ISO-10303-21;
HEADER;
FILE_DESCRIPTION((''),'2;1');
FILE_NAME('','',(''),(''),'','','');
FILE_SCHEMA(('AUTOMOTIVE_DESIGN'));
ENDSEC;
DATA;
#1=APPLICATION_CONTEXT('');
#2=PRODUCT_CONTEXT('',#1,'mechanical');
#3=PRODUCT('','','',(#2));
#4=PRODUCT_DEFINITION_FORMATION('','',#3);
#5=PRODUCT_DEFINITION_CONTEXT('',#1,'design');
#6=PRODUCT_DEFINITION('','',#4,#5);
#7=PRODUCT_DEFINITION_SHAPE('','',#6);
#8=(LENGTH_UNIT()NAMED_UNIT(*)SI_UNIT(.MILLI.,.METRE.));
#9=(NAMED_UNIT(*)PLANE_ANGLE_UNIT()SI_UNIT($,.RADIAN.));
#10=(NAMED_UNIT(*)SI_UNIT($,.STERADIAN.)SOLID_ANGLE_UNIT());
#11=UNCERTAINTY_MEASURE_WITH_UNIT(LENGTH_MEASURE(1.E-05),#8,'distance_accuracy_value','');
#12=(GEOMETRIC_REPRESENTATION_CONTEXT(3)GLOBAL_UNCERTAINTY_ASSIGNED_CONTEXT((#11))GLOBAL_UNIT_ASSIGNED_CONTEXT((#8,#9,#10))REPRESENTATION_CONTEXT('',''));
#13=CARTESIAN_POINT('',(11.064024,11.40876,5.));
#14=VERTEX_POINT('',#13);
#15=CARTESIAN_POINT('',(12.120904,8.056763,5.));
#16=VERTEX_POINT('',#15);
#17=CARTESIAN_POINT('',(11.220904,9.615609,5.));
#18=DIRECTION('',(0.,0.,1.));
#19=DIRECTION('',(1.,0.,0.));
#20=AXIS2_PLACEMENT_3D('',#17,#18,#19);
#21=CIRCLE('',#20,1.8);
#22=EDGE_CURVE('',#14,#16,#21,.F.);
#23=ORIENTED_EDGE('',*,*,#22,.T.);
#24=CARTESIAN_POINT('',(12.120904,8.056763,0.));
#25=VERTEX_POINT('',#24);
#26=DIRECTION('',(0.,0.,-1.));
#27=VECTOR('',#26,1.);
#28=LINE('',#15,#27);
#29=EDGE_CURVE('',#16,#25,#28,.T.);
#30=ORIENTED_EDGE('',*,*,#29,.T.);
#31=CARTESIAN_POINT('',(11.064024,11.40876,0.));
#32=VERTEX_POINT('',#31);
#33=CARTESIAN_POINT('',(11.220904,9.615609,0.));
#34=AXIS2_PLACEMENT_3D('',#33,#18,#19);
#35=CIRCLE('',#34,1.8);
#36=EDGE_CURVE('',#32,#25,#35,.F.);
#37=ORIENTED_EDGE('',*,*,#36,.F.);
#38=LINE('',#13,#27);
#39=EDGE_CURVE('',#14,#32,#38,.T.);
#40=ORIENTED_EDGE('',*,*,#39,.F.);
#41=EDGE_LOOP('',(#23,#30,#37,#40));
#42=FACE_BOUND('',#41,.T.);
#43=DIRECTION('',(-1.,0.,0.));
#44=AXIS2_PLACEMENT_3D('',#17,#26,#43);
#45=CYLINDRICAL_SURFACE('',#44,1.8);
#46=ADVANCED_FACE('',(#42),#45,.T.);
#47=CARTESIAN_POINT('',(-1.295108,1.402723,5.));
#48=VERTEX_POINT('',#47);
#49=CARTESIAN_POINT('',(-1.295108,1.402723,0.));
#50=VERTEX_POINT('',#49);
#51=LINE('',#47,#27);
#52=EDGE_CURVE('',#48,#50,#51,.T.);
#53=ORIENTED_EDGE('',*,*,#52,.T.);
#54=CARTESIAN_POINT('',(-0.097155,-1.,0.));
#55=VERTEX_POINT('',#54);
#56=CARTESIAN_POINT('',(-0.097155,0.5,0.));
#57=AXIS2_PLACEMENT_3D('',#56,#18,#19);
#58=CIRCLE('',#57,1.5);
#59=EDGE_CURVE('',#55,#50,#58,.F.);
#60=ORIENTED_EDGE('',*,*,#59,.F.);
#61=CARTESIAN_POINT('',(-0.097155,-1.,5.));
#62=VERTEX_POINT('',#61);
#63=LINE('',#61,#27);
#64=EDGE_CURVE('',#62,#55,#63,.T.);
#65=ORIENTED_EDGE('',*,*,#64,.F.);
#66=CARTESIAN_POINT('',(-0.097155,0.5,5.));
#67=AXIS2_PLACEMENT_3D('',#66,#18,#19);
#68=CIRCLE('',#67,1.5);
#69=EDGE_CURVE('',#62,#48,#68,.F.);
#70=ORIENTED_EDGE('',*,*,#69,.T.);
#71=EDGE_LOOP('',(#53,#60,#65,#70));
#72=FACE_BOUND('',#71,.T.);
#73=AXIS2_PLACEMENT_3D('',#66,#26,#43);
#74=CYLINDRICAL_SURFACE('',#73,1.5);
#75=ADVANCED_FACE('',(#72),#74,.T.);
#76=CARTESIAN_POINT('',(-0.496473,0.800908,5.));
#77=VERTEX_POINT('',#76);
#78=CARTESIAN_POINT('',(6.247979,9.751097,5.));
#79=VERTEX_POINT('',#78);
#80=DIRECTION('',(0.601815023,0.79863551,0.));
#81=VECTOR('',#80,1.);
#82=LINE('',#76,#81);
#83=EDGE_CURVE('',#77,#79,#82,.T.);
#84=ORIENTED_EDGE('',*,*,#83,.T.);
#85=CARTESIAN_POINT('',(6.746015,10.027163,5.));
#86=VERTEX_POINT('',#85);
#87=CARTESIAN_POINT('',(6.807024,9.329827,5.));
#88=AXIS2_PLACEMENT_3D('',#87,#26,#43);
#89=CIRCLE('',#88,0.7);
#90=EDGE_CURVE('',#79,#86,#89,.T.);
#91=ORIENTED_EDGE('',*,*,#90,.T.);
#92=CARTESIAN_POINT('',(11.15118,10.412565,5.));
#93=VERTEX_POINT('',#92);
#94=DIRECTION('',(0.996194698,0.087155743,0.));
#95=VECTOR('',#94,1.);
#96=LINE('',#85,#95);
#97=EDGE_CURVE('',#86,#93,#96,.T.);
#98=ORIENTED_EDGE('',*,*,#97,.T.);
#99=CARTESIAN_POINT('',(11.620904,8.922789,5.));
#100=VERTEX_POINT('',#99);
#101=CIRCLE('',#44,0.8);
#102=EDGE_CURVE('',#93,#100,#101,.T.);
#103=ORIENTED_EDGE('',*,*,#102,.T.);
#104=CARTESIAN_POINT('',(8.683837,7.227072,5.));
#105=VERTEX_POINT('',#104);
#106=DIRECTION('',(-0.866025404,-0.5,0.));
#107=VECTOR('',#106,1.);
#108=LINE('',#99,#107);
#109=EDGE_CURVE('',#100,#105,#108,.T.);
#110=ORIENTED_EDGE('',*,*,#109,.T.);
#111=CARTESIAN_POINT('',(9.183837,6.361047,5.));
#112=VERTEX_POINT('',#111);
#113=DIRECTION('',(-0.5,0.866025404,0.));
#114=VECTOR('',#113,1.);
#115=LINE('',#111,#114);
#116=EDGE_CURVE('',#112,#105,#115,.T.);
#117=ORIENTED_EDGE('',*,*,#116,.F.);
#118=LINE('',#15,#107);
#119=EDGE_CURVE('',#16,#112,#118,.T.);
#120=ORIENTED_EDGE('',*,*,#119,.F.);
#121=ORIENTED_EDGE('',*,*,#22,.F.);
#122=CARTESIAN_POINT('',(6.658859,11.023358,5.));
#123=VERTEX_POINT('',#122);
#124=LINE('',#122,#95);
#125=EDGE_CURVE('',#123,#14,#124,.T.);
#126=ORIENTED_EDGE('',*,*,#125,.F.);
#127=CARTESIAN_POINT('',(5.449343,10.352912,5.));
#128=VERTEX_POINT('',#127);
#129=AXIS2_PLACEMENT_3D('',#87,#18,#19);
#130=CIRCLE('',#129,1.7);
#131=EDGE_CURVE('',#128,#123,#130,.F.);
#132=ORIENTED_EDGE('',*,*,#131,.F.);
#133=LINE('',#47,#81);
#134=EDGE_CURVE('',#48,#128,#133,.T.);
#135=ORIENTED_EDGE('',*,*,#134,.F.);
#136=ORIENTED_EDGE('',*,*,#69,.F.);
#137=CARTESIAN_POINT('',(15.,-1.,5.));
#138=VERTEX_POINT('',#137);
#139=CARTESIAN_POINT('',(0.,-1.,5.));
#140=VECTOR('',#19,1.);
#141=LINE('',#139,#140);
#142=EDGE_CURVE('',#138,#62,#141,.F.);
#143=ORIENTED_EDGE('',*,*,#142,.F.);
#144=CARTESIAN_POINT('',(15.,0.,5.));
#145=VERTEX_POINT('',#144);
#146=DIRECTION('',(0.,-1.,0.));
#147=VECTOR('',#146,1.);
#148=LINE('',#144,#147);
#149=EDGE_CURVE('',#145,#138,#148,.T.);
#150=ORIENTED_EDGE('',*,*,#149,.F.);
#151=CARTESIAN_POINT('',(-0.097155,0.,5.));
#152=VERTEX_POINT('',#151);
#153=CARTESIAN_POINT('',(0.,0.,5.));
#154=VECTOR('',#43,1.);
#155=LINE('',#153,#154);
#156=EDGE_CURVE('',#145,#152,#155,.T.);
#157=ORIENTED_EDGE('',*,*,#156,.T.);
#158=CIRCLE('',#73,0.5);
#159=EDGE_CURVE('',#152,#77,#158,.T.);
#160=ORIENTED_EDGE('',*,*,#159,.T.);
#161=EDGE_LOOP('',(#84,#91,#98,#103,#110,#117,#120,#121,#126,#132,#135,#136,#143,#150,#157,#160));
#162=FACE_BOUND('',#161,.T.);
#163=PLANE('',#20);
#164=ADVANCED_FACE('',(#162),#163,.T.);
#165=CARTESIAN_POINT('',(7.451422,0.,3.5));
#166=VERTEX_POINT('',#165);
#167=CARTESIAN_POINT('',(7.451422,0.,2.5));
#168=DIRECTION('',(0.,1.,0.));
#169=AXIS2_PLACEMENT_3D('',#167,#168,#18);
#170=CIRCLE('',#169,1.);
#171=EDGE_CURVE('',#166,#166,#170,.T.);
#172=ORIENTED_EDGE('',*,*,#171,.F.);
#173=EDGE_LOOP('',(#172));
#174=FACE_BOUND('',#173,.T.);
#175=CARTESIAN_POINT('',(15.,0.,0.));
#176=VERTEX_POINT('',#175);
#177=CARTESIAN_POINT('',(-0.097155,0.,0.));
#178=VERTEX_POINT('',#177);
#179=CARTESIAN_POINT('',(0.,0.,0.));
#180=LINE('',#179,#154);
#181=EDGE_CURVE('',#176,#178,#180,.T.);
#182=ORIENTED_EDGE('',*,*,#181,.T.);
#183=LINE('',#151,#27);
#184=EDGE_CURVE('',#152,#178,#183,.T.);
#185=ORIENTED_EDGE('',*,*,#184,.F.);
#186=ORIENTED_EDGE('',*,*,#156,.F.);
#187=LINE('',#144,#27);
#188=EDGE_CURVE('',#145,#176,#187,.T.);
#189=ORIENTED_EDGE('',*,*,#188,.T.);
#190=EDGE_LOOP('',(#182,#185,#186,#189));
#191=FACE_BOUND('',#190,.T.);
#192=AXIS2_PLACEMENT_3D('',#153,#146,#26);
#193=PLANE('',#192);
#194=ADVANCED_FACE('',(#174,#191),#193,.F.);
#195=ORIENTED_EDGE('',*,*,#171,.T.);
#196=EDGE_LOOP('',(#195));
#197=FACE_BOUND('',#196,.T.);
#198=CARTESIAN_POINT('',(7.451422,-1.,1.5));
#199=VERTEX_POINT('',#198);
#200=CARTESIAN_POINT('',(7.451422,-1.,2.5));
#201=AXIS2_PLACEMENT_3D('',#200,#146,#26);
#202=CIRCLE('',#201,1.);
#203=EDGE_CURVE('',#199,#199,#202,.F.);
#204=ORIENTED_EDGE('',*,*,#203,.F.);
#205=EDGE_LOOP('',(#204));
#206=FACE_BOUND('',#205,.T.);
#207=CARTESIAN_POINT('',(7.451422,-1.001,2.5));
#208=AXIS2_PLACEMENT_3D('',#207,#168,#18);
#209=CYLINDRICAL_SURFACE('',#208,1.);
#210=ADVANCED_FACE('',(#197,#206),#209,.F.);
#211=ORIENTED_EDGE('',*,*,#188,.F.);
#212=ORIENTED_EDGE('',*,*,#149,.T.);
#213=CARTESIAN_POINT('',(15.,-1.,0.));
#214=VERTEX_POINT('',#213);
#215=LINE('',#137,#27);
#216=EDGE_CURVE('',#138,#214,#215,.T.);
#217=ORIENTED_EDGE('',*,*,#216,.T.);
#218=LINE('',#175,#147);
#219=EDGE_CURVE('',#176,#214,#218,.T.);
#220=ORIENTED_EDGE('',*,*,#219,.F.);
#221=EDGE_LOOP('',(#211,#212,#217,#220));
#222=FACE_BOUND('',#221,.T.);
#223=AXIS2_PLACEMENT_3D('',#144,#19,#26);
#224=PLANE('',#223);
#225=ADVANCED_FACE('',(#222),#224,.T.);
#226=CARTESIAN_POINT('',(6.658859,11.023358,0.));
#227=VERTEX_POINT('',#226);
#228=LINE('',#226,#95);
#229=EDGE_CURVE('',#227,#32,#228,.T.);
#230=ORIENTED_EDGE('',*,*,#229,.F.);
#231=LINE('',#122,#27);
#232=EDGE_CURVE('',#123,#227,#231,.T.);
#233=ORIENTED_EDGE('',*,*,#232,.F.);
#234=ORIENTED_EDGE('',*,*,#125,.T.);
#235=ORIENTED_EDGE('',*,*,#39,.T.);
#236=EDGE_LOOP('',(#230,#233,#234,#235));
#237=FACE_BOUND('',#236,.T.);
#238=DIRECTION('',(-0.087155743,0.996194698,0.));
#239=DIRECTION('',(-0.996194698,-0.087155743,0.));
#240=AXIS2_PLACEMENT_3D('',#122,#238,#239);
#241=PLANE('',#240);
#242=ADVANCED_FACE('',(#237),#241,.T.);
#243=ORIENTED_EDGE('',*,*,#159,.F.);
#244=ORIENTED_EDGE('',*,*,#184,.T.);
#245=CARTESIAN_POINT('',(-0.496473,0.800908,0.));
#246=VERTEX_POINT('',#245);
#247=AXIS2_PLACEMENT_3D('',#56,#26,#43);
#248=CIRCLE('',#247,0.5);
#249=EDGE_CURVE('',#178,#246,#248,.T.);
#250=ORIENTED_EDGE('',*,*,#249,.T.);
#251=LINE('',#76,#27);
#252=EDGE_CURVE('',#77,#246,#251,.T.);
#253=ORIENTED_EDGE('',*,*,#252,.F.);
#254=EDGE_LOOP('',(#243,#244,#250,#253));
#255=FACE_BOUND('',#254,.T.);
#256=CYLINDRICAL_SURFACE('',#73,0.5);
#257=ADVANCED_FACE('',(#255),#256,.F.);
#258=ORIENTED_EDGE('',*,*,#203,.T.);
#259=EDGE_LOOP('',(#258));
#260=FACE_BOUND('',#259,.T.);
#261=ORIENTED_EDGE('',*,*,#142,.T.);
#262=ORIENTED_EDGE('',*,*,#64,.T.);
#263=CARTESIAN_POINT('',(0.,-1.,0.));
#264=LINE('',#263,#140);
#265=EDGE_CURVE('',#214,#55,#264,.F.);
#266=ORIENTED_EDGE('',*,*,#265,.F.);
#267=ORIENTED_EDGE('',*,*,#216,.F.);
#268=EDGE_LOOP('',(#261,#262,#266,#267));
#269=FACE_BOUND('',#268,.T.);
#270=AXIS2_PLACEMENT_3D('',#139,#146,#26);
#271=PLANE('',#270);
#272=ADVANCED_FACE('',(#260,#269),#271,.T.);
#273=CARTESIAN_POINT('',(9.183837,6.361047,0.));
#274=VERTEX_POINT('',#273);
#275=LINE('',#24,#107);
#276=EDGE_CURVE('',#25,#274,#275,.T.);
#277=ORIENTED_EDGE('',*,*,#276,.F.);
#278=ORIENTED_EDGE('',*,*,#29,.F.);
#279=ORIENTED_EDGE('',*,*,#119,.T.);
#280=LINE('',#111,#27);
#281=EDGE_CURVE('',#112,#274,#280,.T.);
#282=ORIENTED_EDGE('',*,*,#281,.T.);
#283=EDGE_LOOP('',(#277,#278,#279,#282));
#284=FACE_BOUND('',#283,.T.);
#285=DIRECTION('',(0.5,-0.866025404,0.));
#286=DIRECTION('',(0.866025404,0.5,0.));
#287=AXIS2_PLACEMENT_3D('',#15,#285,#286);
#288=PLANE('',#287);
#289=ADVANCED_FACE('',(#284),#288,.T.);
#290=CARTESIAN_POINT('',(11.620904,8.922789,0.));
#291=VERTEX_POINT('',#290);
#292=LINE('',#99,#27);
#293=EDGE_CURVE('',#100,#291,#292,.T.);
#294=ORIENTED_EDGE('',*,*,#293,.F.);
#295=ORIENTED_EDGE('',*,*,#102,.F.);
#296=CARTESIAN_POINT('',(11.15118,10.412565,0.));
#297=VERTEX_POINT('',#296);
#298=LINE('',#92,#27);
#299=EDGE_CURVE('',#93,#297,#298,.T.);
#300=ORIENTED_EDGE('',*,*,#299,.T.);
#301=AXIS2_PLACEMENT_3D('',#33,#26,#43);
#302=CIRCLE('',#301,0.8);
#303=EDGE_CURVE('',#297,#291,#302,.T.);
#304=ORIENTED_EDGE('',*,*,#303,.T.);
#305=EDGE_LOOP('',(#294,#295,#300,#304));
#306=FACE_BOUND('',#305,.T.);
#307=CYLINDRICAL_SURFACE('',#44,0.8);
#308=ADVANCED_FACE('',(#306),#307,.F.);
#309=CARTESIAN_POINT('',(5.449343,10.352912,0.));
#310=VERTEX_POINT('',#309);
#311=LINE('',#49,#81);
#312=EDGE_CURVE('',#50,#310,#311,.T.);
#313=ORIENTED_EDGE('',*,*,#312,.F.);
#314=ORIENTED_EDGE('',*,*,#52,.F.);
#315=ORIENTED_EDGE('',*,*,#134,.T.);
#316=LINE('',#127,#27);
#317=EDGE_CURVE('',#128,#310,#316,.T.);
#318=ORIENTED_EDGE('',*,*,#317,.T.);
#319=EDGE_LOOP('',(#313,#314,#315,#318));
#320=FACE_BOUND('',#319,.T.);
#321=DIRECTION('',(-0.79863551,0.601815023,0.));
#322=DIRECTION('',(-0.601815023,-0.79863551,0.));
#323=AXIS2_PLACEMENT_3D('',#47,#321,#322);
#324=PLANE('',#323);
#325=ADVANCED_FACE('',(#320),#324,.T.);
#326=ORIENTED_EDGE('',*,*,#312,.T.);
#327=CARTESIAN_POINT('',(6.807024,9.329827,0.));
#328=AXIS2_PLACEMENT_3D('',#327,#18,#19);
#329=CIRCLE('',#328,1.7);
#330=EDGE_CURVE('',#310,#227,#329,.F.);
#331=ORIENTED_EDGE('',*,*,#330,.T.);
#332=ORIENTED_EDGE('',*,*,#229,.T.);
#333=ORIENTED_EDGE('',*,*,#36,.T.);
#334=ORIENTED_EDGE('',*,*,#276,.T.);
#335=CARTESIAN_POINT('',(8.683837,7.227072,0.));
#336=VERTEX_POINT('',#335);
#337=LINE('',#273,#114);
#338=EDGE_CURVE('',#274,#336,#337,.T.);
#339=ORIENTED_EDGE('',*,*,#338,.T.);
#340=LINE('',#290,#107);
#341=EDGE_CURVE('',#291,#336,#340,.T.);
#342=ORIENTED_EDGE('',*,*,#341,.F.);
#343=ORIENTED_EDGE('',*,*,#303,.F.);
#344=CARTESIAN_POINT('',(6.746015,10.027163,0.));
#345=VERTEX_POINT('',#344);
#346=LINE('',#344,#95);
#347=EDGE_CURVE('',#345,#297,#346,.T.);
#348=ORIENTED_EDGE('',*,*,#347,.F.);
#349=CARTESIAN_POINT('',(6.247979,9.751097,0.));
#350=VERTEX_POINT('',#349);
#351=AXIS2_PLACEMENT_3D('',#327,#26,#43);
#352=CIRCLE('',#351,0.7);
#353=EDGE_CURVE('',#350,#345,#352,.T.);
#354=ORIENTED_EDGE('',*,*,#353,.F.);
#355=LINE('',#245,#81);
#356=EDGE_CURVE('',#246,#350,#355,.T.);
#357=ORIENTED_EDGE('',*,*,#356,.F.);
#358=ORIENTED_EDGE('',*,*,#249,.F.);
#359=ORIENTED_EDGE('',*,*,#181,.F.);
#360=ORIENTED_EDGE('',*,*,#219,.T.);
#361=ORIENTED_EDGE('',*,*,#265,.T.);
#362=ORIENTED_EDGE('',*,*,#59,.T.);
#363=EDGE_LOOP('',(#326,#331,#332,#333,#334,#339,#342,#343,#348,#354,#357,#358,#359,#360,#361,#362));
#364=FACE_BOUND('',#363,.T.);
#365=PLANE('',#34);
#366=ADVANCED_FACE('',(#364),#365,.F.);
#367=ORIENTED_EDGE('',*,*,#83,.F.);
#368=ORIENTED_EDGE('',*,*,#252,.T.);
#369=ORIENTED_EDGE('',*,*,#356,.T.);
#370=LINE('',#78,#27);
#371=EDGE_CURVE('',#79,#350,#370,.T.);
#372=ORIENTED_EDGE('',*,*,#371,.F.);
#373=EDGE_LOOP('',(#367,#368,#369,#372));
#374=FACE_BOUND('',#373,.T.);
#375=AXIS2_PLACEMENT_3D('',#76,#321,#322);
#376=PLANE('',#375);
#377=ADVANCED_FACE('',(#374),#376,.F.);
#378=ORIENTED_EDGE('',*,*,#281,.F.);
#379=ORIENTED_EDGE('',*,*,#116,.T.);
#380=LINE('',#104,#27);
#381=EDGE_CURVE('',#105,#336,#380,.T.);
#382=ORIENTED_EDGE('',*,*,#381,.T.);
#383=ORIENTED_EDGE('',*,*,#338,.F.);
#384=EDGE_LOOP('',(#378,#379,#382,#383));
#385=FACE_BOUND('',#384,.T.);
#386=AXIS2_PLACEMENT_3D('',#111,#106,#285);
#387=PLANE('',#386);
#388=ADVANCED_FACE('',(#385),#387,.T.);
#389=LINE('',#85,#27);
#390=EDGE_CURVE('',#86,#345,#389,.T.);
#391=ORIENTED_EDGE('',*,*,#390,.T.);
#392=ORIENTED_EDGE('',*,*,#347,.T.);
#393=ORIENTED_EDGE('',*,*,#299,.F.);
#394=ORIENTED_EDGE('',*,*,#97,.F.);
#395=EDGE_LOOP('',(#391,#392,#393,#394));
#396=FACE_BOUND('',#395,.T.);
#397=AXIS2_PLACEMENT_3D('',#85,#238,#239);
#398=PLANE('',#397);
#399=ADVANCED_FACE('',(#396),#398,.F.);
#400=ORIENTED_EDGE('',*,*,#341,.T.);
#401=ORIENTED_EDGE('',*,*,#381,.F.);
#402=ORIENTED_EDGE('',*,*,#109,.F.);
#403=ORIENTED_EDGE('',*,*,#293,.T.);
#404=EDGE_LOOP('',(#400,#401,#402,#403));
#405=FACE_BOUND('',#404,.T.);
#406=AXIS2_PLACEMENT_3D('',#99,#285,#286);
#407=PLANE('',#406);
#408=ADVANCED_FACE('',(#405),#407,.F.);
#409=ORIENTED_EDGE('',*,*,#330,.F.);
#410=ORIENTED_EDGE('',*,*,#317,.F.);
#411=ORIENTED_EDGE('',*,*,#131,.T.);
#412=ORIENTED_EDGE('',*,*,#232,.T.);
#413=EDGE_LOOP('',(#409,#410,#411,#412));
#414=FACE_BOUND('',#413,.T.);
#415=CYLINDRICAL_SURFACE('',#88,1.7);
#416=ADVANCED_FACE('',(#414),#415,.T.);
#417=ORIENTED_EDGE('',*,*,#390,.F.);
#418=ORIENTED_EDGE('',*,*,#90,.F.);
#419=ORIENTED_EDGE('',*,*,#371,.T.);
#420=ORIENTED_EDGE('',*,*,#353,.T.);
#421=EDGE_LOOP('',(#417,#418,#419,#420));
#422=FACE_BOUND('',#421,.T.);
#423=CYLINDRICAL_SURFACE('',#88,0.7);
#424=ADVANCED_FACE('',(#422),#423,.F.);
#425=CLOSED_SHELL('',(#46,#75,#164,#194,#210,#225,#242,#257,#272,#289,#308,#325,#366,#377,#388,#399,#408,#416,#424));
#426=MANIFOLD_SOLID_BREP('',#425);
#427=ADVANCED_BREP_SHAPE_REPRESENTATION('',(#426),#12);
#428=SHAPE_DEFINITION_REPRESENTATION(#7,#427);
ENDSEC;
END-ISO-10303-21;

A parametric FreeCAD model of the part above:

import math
import FreeCAD as App
import Part
import Sketcher

V = App.Vector
Q = App.Units.Quantity

doc = App.newDocument("Part")
body = doc.addObject("PartDesign::Body", "Body")

# Sketch on XY plane
sketch1 = doc.addObject("Sketcher::SketchObject", "Sketch")
body.addObject(sketch1)
sketch1.AttachmentSupport = (doc.XY_Plane, [""])
sketch1.MapMode = "FlatFace"
sketch1.addGeometry([
    Part.LineSegment(V(11.6, 8.9, 0), V(8.7, 7.2, 0)),  # 0
    Part.LineSegment(V(8.7, 7.2, 0), V(9.2, 6.4, 0)),  # 1
    Part.LineSegment(V(9.2, 6.4, 0), V(12.1, 8.1, 0)),  # 2
    Part.ArcOfCircle(Part.Circle(V(11.2, 9.6, 0), V(0, 0, 1), 1.8), math.radians(-60), math.radians(95)),  # 3
    Part.LineSegment(V(11.1, 11.4, 0), V(6.7, 11, 0)),  # 4
    Part.ArcOfCircle(Part.Circle(V(6.8, 9.3, 0), V(0, 0, 1), 1.7), math.radians(95), math.radians(143)),  # 5
    Part.LineSegment(V(5.4, 10.4, 0), V(-1.3, 1.4, 0)),  # 6
    Part.ArcOfCircle(Part.Circle(V(-0.1, 0.5, 0), V(0, 0, 1), 1.5), math.radians(143), math.radians(270)),  # 7
    Part.LineSegment(V(-0.1, -1, 0), V(15, -1, 0)),  # 8
    Part.LineSegment(V(15, -1, 0), V(15, 0, 0)),  # 9
    Part.LineSegment(V(15, 0, 0), V(-0.1, 0, 0)),  # 10
    Part.ArcOfCircle(Part.Circle(V(-0.1, 0.5, 0), V(0, 0, 1), 0.5), math.radians(143), math.radians(270)),  # 11
    Part.LineSegment(V(-0.5, 0.8, 0), V(6.2, 9.8, 0)),  # 12
    Part.ArcOfCircle(Part.Circle(V(6.8, 9.3, 0), V(0, 0, 1), 0.7), math.radians(95), math.radians(143)),  # 13
    Part.LineSegment(V(6.7, 10, 0), V(11.2, 10.4, 0)),  # 14
    Part.ArcOfCircle(Part.Circle(V(11.2, 9.6, 0), V(0, 0, 1), 0.8), math.radians(-60), math.radians(95)),  # 15
], False)
sketch1.addConstraint([
    Sketcher.Constraint("Coincident", 0, 2, 1, 1),
    Sketcher.Constraint("Coincident", 1, 2, 2, 1),
    Sketcher.Constraint("Tangent", 2, 2, 3, 1),
    Sketcher.Constraint("Tangent", 3, 2, 4, 1),
    Sketcher.Constraint("Tangent", 4, 2, 5, 1),
    Sketcher.Constraint("Tangent", 5, 2, 6, 1),
    Sketcher.Constraint("Tangent", 6, 2, 7, 1),
    Sketcher.Constraint("Tangent", 7, 2, 8, 1),
    Sketcher.Constraint("Coincident", 8, 2, 9, 1),
    Sketcher.Constraint("Coincident", 9, 2, 10, 1),
    Sketcher.Constraint("Tangent", 10, 2, 11, 2),
    Sketcher.Constraint("Tangent", 11, 1, 12, 1),
    Sketcher.Constraint("Tangent", 12, 2, 13, 2),
    Sketcher.Constraint("Tangent", 13, 1, 14, 1),
    Sketcher.Constraint("Tangent", 14, 2, 15, 2),
    Sketcher.Constraint("Tangent", 15, 1, 0, 1),
    Sketcher.Constraint("Horizontal", 8),
    Sketcher.Constraint("Vertical", 9),
    Sketcher.Constraint("Horizontal", 10),
    Sketcher.Constraint("Coincident", 11, 3, 7, 3),
    Sketcher.Constraint("Coincident", 13, 3, 5, 3),
    Sketcher.Constraint("Coincident", 15, 3, 3, 3),
    Sketcher.Constraint("PointOnObject", 9, 2, -1),
    Sketcher.Constraint("Perpendicular", 0, 1),
    Sketcher.Constraint("Perpendicular", 1, 2),
    Sketcher.Constraint("Parallel", 6, 12),
    Sketcher.Constraint("Parallel", 4, 14),
    Sketcher.Constraint("Radius", 3, Q("1.8 mm")),
    Sketcher.Constraint("Radius", 5, Q("1.7 mm")),
    Sketcher.Constraint("Radius", 7, Q("1.5 mm")),
    Sketcher.Constraint("Radius", 11, Q("0.5 mm")),
    Sketcher.Constraint("Angle", 0, Q("-150 deg")),
    Sketcher.Constraint("Angle", 4, Q("-175 deg")),
    Sketcher.Constraint("Angle", 6, Q("-127 deg")),
    Sketcher.Constraint("DistanceX", -1, 1, 8, 2, Q("15 mm")),
    Sketcher.Constraint("DistanceX", 13, 3, 3, 2, Q("4.257 mm")),
    Sketcher.Constraint("Distance", 6, Q("11.206852 mm")),
    Sketcher.Constraint("DistanceX", 8, 1, 8, 2, Q("15.097155 mm")),
    Sketcher.Constraint("DistanceX", 7, 3, 0, 2, Q("8.780992 mm")),
])
pad1 = doc.addObject("PartDesign::Pad", "Pad")
body.addObject(pad1)
pad1.Profile = sketch1
pad1.Length = 5

# Sketch on XZ plane
sketch2 = doc.addObject("Sketcher::SketchObject", "Sketch001")
body.addObject(sketch2)
sketch2.AttachmentSupport = (doc.XZ_Plane, [""])
sketch2.MapMode = "FlatFace"
sketch2.addGeometry(Part.Circle(V(7.5, 2.5, 0), V(0, 0, 1), 1), False)
sketch2.addConstraint([
    Sketcher.Constraint("Diameter", 0, Q("2 mm")),
    Sketcher.Constraint("DistanceY", -1, 1, 0, 3, Q("2.5 mm")),
    Sketcher.Constraint("DistanceX", -1, 1, 0, 3, Q("7.451422 mm")),
])
pocket1 = doc.addObject("PartDesign::Pocket", "Pocket")
body.addObject(pocket1)
pocket1.Profile = sketch2
pocket1.Type = "UpToFirst"
pocket1.Reversed = True

doc.recompute()
